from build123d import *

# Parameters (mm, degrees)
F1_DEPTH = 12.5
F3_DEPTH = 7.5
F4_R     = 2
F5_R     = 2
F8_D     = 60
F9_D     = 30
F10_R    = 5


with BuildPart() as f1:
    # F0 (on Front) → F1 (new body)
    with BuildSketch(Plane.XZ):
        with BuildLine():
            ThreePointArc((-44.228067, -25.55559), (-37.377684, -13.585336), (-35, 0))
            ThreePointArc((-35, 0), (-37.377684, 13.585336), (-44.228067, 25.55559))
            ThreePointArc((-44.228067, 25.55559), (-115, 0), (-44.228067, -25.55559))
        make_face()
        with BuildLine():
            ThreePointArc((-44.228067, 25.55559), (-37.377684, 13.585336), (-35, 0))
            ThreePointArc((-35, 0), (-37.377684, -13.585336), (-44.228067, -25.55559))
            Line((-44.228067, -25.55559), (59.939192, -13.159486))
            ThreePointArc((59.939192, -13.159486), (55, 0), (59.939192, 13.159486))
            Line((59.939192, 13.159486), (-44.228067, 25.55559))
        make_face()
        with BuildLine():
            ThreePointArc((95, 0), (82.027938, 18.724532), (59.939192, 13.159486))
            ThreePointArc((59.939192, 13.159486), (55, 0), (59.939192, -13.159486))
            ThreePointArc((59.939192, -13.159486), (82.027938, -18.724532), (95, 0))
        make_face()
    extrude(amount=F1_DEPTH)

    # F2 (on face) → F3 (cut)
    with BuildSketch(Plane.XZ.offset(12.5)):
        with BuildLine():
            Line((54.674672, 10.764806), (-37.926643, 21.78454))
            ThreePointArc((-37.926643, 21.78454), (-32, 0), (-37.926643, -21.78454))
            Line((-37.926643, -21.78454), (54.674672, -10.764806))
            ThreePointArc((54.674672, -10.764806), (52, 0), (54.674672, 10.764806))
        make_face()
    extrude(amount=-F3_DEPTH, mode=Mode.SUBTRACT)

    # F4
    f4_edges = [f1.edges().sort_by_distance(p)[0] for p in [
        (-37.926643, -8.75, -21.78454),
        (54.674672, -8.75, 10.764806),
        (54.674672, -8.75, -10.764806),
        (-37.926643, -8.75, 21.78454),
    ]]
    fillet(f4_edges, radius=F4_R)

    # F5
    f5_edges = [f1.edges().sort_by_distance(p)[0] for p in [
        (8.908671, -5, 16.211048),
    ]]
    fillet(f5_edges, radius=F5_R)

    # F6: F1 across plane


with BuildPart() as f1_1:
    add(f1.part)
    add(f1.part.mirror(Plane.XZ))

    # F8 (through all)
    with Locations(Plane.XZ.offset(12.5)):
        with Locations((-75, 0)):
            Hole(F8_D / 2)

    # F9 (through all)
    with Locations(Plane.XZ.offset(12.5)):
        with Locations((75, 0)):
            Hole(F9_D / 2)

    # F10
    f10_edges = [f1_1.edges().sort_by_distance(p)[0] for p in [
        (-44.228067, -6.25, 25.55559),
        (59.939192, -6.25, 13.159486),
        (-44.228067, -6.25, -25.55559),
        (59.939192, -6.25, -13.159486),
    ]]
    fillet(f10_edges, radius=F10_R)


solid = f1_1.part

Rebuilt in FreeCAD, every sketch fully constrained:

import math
import FreeCAD as App
import Part
import Sketcher


def edges_at(feature, points):
    """Names of the edges that pass closest to the given points."""
    edges = feature.Shape.Edges
    near = lambda p: min(range(len(edges)), key=lambda i: edges[i].distToShape(Part.Vertex(*p))[0])
    return sorted({f"Edge{near(p) + 1}" for p in points})

doc = App.newDocument("Part")
body = doc.addObject("PartDesign::Body", "Body")

# Sketch on XZ plane
sketch1 = body.newObject("Sketcher::SketchObject", "Sketch")
sketch1.AttachmentSupport = (doc.getObject("XZ_Plane"), [""])
sketch1.MapMode = "FlatFace"
sketch1.addGeometry([
    Part.ArcOfCircle(Part.Circle(App.Vector(-75, 0, 0), App.Vector(0, 0, 1), 40), math.radians(40), math.radians(320)),  # 0
    Part.LineSegment(App.Vector(-44, -26, 0), App.Vector(60, -13, 0)),  # 1
    Part.ArcOfCircle(Part.Circle(App.Vector(75, 0, 0), App.Vector(0, 0, 1), 20), math.radians(-139), math.radians(0)),  # 2
    Part.ArcOfCircle(Part.Circle(App.Vector(75, 0, 0), App.Vector(0, 0, 1), 20), math.radians(0), math.radians(139)),  # 3
    Part.LineSegment(App.Vector(60, 13, 0), App.Vector(-44, 26, 0)),  # 4
], False)
sketch1.addConstraint([
    Sketcher.Constraint("Coincident", 0, 2, 1, 1),
    Sketcher.Constraint("Coincident", 1, 2, 2, 1),
    Sketcher.Constraint("Tangent", 2, 2, 3, 1),
    Sketcher.Constraint("Coincident", 3, 2, 4, 1),
    Sketcher.Constraint("Coincident", 4, 2, 0, 1),
    Sketcher.Constraint("Equal", 2, 3),
    Sketcher.Constraint("Symmetric", 0, 3, 2, 3, -1, 1),
    Sketcher.Constraint("Symmetric", 1, 2, 3, 2, -1),
    Sketcher.Constraint("PointOnObject", 2, 2, -1),
    Sketcher.Constraint("Vertical", 0, 2, 4, 2),
    Sketcher.Constraint("Radius", 0, 40.0),
    Sketcher.Constraint("Radius", 2, 20.0),
    Sketcher.Constraint("DistanceX", 0, 3, -1, 1, 75.0),
    Sketcher.Constraint("DistanceY", 0, 2, -1, 1, 25.55559),
    Sketcher.Constraint("DistanceX", -1, 1, 1, 2, 59.939192),
])
pad1 = body.newObject("PartDesign::Pad", "Pad")
pad1.Profile = sketch1
pad1.Length = 12.5

# Sketch on XZ plane
sketch2 = body.newObject("Sketcher::SketchObject", "Sketch001")
sketch2.AttachmentSupport = (doc.getObject("XZ_Plane"), [""])
sketch2.MapMode = "FlatFace"
sketch2.AttachmentOffset = App.Placement(App.Vector(0, 0, 12.5), App.Rotation())
sketch2.addGeometry([
    Part.LineSegment(App.Vector(55, 11, 0), App.Vector(-38, 22, 0)),
    Part.ArcOfCircle(Part.Circle(App.Vector(-75, 0, 0), App.Vector(0, 0, 1), 43), math.radians(-30), math.radians(30)),
    Part.LineSegment(App.Vector(-38, -22, 0), App.Vector(55, -11, 0)),
    Part.ArcOfCircle(Part.Circle(App.Vector(75, 0, 0), App.Vector(0, 0, 1), 23), math.radians(152), math.radians(208)),
], False)
sketch2.addConstraint([
    Sketcher.Constraint("Coincident", 0, 2, 1, 2),
    Sketcher.Constraint("Coincident", 1, 1, 2, 1),
    Sketcher.Constraint("Coincident", 2, 2, 3, 2),
    Sketcher.Constraint("Coincident", 3, 1, 0, 1),
    Sketcher.Constraint("Symmetric", 1, 3, 3, 3, -1, 1),
    Sketcher.Constraint("Symmetric", 0, 2, 1, 1, -1),
    Sketcher.Constraint("Vertical", 2, 2, 3, 1),
    Sketcher.Constraint("Radius", 1, 42.999999),
    Sketcher.Constraint("Radius", 3, 23.000001),
    Sketcher.Constraint("DistanceX", 1, 3, -1, 1, 74.999999),
    Sketcher.Constraint("DistanceY", -1, 1, 0, 2, 21.78454),
    Sketcher.Constraint("DistanceX", -1, 1, 3, 1, 54.674672),
])
pocket1 = body.newObject("PartDesign::Pocket", "Pocket")
pocket1.Profile = sketch2
pocket1.Length = 7.5
doc.recompute()

fillet = body.newObject("PartDesign::Fillet", "Fillet")
fillet.Base = (pocket1, edges_at(pocket1, [
    (-37.927, -8.75, -21.785),
    (54.675, -8.75, 10.765),
    (54.675, -8.75, -10.765),
    (-37.927, -8.75, 21.785),
]))
fillet.Radius = 2
doc.recompute()

fillet2 = body.newObject("PartDesign::Fillet", "Fillet001")
fillet2.Base = (fillet, edges_at(fillet, [(8.909, -5, 16.211)]))
fillet2.Radius = 2
body2 = doc.addObject("PartDesign::Body", "Body001")
doc.recompute()

body2.BaseFeature = body
doc.recompute()

mirroring = doc.addObject("Part::Mirroring", "Mirroring")
mirroring.Source = body
mirroring.Base = App.Vector(0, 0, 0)
mirroring.Normal = App.Vector(0, -1, 0)
body3 = doc.addObject("PartDesign::Body", "Body002")
body3.BaseFeature = mirroring
boolean = body2.newObject("PartDesign::Boolean", "Boolean")
boolean.Type = "Fuse"
boolean.addObjects([body3])
doc.recompute()

# Sketch on XZ plane
sketch3 = body2.newObject("Sketcher::SketchObject", "Sketch002")
sketch3.AttachmentSupport = (doc.getObject("XZ_Plane001"), [""])
sketch3.MapMode = "FlatFace"
sketch3.AttachmentOffset = App.Placement(App.Vector(0, 0, 12.5), App.Rotation())
sketch3.addGeometry(Part.Circle(App.Vector(-75, 0, 0), App.Vector(0, 0, 1), 30), False)
sketch3.addConstraint([
    Sketcher.Constraint("PointOnObject", 0, 3, -1),
    Sketcher.Constraint("Diameter", 0, 60.0),
    Sketcher.Constraint("DistanceX", 0, 3, -1, 1, 75.0),
])
doc.recompute()
hole = body2.newObject("PartDesign::Hole", "Hole")
hole.Profile = sketch3
hole.ThreadType = "None"
hole.Diameter = 60
hole.DepthType = "ThroughAll"

# Sketch on XZ plane
sketch4 = body2.newObject("Sketcher::SketchObject", "Sketch003")
sketch4.AttachmentSupport = (doc.getObject("XZ_Plane001"), [""])
sketch4.MapMode = "FlatFace"
sketch4.AttachmentOffset = App.Placement(App.Vector(0, 0, 12.5), App.Rotation())
sketch4.addGeometry(Part.Circle(App.Vector(75, 0, 0), App.Vector(0, 0, 1), 15), False)
sketch4.addConstraint([
    Sketcher.Constraint("PointOnObject", 0, 3, -1),
    Sketcher.Constraint("Diameter", 0, 30.0),
    Sketcher.Constraint("DistanceX", -1, 1, 0, 3, 75.0),
])
doc.recompute()
hole2 = body2.newObject("PartDesign::Hole", "Hole001")
hole2.Profile = sketch4
hole2.ThreadType = "None"
hole2.Diameter = 30
hole2.DepthType = "ThroughAll"
doc.recompute()

fillet3 = body2.newObject("PartDesign::Fillet", "Fillet002")
fillet3.Base = (hole2, edges_at(hole2, [
    (-44.228, 0, 25.556),
    (59.939, 0, 13.159),
    (-44.228, 0, -25.556),
    (59.939, 0, -13.159),
]))
fillet3.Radius = 5
mirroring.Visibility = False

doc.recompute()
